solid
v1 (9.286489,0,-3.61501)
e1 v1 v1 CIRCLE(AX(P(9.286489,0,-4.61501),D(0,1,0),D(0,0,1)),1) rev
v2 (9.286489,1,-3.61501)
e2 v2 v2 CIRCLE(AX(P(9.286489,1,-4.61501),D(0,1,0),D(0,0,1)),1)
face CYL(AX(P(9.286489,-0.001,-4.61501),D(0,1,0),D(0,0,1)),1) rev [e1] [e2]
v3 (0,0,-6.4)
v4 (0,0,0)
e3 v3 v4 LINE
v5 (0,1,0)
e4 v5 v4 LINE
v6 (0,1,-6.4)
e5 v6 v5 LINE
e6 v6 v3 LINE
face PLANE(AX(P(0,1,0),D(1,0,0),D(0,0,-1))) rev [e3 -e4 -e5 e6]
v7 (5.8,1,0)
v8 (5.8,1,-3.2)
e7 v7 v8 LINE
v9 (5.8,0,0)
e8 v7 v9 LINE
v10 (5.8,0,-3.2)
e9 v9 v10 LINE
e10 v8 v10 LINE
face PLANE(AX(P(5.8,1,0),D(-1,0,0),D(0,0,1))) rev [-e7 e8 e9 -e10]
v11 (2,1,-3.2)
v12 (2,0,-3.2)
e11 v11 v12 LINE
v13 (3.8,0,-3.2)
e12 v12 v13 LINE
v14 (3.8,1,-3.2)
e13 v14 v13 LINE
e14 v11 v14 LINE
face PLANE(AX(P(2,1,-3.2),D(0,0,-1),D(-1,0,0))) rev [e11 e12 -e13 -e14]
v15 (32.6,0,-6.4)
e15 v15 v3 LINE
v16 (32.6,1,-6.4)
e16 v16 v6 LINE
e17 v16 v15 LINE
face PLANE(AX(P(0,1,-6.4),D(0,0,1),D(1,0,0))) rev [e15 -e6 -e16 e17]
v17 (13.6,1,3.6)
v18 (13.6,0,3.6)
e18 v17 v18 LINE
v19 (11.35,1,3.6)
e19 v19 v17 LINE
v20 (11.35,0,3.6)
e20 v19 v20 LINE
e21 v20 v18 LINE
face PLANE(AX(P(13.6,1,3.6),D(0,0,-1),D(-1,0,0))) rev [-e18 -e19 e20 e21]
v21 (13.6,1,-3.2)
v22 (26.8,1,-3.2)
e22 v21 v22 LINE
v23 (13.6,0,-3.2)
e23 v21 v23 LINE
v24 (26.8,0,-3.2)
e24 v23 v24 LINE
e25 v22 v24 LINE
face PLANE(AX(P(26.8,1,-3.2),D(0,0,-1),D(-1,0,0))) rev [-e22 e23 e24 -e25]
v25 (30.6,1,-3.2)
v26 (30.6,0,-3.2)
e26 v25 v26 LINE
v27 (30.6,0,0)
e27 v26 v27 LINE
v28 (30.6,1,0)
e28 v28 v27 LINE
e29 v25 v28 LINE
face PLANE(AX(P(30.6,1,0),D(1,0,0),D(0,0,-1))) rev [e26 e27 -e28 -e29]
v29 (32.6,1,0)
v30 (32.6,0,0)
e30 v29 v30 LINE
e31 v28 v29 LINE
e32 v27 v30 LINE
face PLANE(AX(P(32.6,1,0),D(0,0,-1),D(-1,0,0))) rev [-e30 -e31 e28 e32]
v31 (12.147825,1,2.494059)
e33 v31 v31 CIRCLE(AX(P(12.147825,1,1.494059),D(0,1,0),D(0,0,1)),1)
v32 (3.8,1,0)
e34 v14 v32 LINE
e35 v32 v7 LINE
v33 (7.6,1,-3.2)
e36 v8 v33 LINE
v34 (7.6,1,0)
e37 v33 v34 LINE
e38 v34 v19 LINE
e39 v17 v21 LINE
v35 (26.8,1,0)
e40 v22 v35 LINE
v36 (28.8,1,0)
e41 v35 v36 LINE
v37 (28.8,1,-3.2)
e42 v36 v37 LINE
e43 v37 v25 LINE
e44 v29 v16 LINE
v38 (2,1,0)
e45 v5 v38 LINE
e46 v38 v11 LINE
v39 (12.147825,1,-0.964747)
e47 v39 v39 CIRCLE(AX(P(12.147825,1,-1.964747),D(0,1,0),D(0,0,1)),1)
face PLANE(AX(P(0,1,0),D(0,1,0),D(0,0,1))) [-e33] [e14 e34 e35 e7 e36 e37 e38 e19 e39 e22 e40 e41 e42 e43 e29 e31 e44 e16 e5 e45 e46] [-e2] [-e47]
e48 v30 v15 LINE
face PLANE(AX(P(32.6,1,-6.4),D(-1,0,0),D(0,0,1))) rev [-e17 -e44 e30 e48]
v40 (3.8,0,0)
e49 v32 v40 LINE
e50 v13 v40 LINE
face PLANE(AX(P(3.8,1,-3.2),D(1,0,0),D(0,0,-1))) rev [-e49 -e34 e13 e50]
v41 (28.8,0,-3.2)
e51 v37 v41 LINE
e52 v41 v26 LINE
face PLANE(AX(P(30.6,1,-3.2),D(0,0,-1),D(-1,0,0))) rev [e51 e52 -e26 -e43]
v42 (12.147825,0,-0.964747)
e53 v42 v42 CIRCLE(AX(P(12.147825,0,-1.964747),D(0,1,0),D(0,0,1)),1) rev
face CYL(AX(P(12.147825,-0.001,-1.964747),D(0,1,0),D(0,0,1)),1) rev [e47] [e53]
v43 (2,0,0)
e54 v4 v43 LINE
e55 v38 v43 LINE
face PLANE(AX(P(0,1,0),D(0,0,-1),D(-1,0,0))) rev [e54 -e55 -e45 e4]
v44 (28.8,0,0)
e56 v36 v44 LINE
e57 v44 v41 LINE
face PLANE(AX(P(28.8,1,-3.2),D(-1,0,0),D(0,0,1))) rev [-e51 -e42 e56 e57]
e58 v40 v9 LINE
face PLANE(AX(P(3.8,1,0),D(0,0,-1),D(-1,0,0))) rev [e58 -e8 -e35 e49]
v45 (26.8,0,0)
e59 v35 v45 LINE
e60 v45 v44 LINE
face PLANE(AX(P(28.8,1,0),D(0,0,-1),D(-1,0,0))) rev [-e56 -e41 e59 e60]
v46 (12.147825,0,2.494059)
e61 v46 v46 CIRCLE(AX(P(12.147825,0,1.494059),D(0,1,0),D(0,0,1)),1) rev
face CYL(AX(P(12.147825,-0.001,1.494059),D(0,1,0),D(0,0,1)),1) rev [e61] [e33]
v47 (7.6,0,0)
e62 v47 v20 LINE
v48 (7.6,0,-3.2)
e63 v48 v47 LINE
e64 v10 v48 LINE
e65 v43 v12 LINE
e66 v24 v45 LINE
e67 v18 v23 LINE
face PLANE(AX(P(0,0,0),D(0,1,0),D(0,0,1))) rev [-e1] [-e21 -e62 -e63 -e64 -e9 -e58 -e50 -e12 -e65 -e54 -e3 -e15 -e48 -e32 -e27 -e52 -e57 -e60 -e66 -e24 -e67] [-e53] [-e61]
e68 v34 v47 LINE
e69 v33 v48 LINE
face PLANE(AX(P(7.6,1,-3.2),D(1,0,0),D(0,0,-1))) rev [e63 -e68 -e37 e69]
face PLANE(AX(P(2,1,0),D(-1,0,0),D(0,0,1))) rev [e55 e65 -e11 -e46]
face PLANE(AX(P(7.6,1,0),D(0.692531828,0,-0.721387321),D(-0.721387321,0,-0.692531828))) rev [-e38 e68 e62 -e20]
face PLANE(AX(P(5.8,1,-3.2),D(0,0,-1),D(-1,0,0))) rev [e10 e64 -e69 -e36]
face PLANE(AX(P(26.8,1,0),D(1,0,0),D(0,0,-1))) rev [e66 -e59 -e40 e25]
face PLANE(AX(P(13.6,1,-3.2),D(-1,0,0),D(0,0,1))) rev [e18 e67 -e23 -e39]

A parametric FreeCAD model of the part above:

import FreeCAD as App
import Part
import Sketcher
from FreeCAD import Vector


def add_polygon(sketch, points):
    """Adds a closed chain of lines whose ends are joined by coincident constraints."""
    first, n = sketch.GeometryCount, len(points)
    for a, b in zip(points, points[1:] + points[:1]):
        sketch.addGeometry(Part.LineSegment(App.Vector(*a, 0), App.Vector(*b, 0)), False)
    for i in range(n):
        sketch.addConstraint(Sketcher.Constraint("Coincident", first + i, 2, first + (i + 1) % n, 1))

doc = App.newDocument("Part")
params = doc.addObject("Spreadsheet::Sheet", "Params")
for row, (alias, value) in enumerate([
    ("sketch1_width", "2 mm"),
    ("sketch1_width2", "1.8 mm"),
    ("sketch1_width3", "13.2 mm"),
    ("sketch1_width4", "32.6 mm"),
    ("sketch1_height", "6.4 mm"),
    ("pad1_length", "1 mm"),
    ("sketch2_diameter", "2 mm"),
    ("sketch3_diameter", "2 mm"),
    ("sketch4_diameter", "2 mm"),
], start=1):
    params.set(f"A{row}", alias)
    params.set(f"B{row}", "=" + value)
    params.setAlias(f"B{row}", alias)

body = doc.addObject("PartDesign::Body", "Body")

# Sketch on XZ plane
sketch1 = body.newObject("Sketcher::SketchObject", "Sketch")
sketch1.AttachmentSupport = (doc.getObject("XZ_Plane"), [""])
sketch1.MapMode = "FlatFace"
add_polygon(sketch1, [(0, -6.4), (0, 0), (2, 0), (2, -3.2), (3.8, -3.2), (3.8, 0), (5.8, 0), (5.8, -3.2), (7.6, -3.2), (7.6, 0), (11.3, 3.6), (13.6, 3.6), (13.6, -3.2), (26.8, -3.2), (26.8, 0), (28.8, 0), (28.8, -3.2), (30.6, -3.2), (30.6, 0), (32.6, 0), (32.6, -6.4)])  # lines 0-20
sketch1.addConstraint([
    Sketcher.Constraint("Vertical", 0),
    Sketcher.Constraint("Horizontal", 1),
    Sketcher.Constraint("Vertical", 2),
    Sketcher.Constraint("Horizontal", 3),
    Sketcher.Constraint("Vertical", 4),
    Sketcher.Constraint("Horizontal", 5),
    Sketcher.Constraint("Vertical", 6),
    Sketcher.Constraint("Horizontal", 7),
    Sketcher.Constraint("Vertical", 8),
    Sketcher.Constraint("Horizontal", 10),
    Sketcher.Constraint("Vertical", 11),
    Sketcher.Constraint("Horizontal", 12),
    Sketcher.Constraint("Vertical", 13),
    Sketcher.Constraint("Horizontal", 14),
    Sketcher.Constraint("Vertical", 15),
    Sketcher.Constraint("Horizontal", 16),
    Sketcher.Constraint("Vertical", 17),
    Sketcher.Constraint("Horizontal", 18),
    Sketcher.Constraint("Vertical", 19),
    Sketcher.Constraint("Horizontal", 20),
    Sketcher.Constraint("Coincident", 0, 2, -1, 1),
    Sketcher.Constraint("PointOnObject", 4, 2, -1),
    Sketcher.Constraint("PointOnObject", 8, 2, -1),
    Sketcher.Constraint("PointOnObject", 13, 2, -1),
    Sketcher.Constraint("PointOnObject", 17, 2, -1),
    Sketcher.Constraint("Horizontal", 3, 2, 6, 2),
    Sketcher.Constraint("Horizontal", 7, 2, 11, 2),
    Sketcher.Constraint("Horizontal", 12, 2, 15, 2),
    Sketcher.Constraint("Equal", 1, 5),
    Sketcher.Constraint("Equal", 3, 7),
    Sketcher.Constraint("Equal", 5, 14),
    Sketcher.Constraint("Equal", 7, 16),
    Sketcher.Constraint("Equal", 14, 18),
    Sketcher.Constraint("DistanceX", 1, 1, 1, 2, 2.0),
    Sketcher.Constraint("DistanceX", 3, 1, 3, 2, 1.8),
    Sketcher.Constraint("DistanceX", 12, 1, 12, 2, 13.2),
    Sketcher.Constraint("DistanceX", 20, 2, 20, 1, 32.6),
    Sketcher.Constraint("DistanceY", 0, 1, 0, 2, 6.4),
    Sketcher.Constraint("DistanceY", 2, 2, 2, 1, 3.2),
    Sketcher.Constraint("DistanceY", 11, 2, 11, 1, 6.8),
    Sketcher.Constraint("DistanceX", 10, 1, 10, 2, 2.25),
])
sketch1.setExpression("Constraints[54]", "Params.sketch1_width")
sketch1.setExpression("Constraints[55]", "Params.sketch1_width2")
sketch1.setExpression("Constraints[56]", "Params.sketch1_width3")
sketch1.setExpression("Constraints[57]", "Params.sketch1_width4")
sketch1.setExpression("Constraints[58]", "Params.sketch1_height")
pad1 = body.newObject("PartDesign::Pad", "Pad")
pad1.Profile = sketch1
pad1.setExpression("Length", "Params.pad1_length")
pad1.Reversed = True

# Sketch on XZ plane
sketch2 = body.newObject("Sketcher::SketchObject", "Sketch001")
sketch2.AttachmentSupport = (doc.getObject("XZ_Plane"), [""])
sketch2.MapMode = "FlatFace"
sketch2.AttachmentOffset = App.Placement(Vector(0, 0, -1), App.Rotation())
sketch2.addGeometry(Part.Circle(Vector(9.3, -4.6, 0), Vector(0, 0, 1), 1), False)
sketch2.addConstraint([
    Sketcher.Constraint("Diameter", 0, 2.0),
    Sketcher.Constraint("DistanceX", -1, 1, 0, 3, 9.286489),
    Sketcher.Constraint("DistanceY", 0, 3, -1, 1, 4.61501),
])
sketch2.setExpression("Constraints[0]", "Params.sketch2_diameter")
pocket1 = body.newObject("PartDesign::Pocket", "Pocket")
pocket1.Profile = sketch2
pocket1.Type = "UpToFirst"
pocket1.Reversed = True

# Sketch on XZ plane
sketch3 = body.newObject("Sketcher::SketchObject", "Sketch002")
sketch3.AttachmentSupport = (doc.getObject("XZ_Plane"), [""])
sketch3.MapMode = "FlatFace"
sketch3.AttachmentOffset = App.Placement(Vector(0, 0, -1), App.Rotation())
sketch3.addGeometry(Part.Circle(Vector(12.1, -2, 0), Vector(0, 0, 1), 1), False)
sketch3.addConstraint([
    Sketcher.Constraint("Diameter", 0, 2.0),
    Sketcher.Constraint("DistanceX", -1, 1, 0, 3, 12.147825),
    Sketcher.Constraint("DistanceY", 0, 3, -1, 1, 1.964747),
])
sketch3.setExpression("Constraints[0]", "Params.sketch3_diameter")
pocket2 = body.newObject("PartDesign::Pocket", "Pocket001")
pocket2.Profile = sketch3
pocket2.Type = "UpToFirst"
pocket2.Reversed = True

# Sketch on XZ plane
sketch4 = body.newObject("Sketcher::SketchObject", "Sketch003")
sketch4.AttachmentSupport = (doc.getObject("XZ_Plane"), [""])
sketch4.MapMode = "FlatFace"
sketch4.AttachmentOffset = App.Placement(Vector(0, 0, -1), App.Rotation())
sketch4.addGeometry(Part.Circle(Vector(12.1, 1.5, 0), Vector(0, 0, 1), 1), False)
sketch4.addConstraint([
    Sketcher.Constraint("Diameter", 0, 2.0),
    Sketcher.Constraint("DistanceY", -1, 1, 0, 3, 1.494059),
    Sketcher.Constraint("DistanceX", -1, 1, 0, 3, 12.147825),
])
sketch4.setExpression("Constraints[0]", "Params.sketch4_diameter")
pocket3 = body.newObject("PartDesign::Pocket", "Pocket002")
pocket3.Profile = sketch4
pocket3.Type = "UpToFirst"
pocket3.Reversed = True

doc.recompute()
